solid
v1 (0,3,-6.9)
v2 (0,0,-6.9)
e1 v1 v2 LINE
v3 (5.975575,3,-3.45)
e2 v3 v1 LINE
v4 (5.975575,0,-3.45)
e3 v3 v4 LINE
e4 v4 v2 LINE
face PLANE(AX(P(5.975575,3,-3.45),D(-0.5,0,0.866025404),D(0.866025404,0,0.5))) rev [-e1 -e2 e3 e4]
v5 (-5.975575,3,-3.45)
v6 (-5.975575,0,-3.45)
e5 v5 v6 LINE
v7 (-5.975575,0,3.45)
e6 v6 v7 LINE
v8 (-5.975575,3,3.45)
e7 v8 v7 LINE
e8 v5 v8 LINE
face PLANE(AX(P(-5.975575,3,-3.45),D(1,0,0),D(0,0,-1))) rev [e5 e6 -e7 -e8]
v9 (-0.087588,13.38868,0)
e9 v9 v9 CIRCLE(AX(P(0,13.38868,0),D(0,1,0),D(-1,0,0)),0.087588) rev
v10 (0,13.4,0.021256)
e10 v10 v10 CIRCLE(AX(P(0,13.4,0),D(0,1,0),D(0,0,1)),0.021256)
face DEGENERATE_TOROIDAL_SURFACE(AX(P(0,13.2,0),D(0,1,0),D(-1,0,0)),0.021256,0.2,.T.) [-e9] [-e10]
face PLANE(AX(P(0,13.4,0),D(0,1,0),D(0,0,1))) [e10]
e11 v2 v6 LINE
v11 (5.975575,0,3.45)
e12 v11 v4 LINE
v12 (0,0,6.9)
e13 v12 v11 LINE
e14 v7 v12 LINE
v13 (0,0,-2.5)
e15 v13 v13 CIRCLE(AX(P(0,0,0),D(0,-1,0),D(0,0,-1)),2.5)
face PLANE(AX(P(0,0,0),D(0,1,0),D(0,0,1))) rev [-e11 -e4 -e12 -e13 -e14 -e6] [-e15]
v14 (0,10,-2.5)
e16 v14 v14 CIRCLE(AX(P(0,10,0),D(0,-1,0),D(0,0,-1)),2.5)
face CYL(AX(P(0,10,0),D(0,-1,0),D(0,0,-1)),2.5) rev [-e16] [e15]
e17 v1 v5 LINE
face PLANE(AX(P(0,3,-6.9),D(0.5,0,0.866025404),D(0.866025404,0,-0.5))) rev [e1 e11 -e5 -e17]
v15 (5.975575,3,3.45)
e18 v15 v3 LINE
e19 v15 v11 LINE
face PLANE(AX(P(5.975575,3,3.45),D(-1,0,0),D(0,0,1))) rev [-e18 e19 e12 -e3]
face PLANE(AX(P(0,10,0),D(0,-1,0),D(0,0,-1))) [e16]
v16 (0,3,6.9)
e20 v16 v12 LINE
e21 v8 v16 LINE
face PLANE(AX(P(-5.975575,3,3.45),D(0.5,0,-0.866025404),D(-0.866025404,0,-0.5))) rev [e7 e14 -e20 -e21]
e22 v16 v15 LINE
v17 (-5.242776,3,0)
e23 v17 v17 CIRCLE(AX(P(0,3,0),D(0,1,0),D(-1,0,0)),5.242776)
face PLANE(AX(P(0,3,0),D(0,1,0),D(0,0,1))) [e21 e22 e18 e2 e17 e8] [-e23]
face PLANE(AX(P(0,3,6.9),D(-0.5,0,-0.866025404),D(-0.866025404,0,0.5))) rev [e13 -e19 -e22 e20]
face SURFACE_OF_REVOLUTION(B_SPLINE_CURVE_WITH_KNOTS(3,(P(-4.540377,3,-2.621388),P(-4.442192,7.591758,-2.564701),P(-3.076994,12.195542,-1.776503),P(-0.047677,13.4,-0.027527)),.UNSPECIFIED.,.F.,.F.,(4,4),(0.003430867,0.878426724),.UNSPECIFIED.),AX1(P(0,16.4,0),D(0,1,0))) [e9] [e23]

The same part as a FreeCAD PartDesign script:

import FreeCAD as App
import Part
import Sketcher
Q = App.Units.Quantity


def edges_at(feature, points):
    """Names of the edges that pass closest to the given points."""
    edges = feature.Shape.Edges
    near = lambda p: min(range(len(edges)), key=lambda i: edges[i].distToShape(Part.Vertex(*p))[0])
    return sorted({f"Edge{near(p) + 1}" for p in points})

doc = App.newDocument("Part")
body = doc.addObject("PartDesign::Body", "Body")

# Sketch on XZ plane
sketch1 = body.newObject("Sketcher::SketchObject", "Sketch")
sketch1.AttachmentSupport = (doc.getObject("XZ_Plane"), [""])
sketch1.MapMode = "FlatFace"
sketch1.addGeometry(Part.LineSegment(App.Vector(0, 7, 0), App.Vector(6, 3, 0)), False)
sketch1.addGeometry(Part.LineSegment(App.Vector(6, 3, 0), App.Vector(6, -3, 0)), False)
sketch1.addGeometry(Part.LineSegment(App.Vector(6, -3, 0), App.Vector(0, -7, 0)), False)
sketch1.addGeometry(Part.LineSegment(App.Vector(0, -7, 0), App.Vector(-6, -3, 0)), False)
sketch1.addGeometry(Part.LineSegment(App.Vector(-6, -3, 0), App.Vector(-6, 3, 0)), False)
sketch1.addGeometry(Part.LineSegment(App.Vector(-6, 3, 0), App.Vector(0, 7, 0)), False)
sketch1.addConstraint(Sketcher.Constraint("Coincident", 0, 2, 1, 1))
sketch1.addConstraint(Sketcher.Constraint("Coincident", 1, 2, 2, 1))
sketch1.addConstraint(Sketcher.Constraint("Coincident", 2, 2, 3, 1))
sketch1.addConstraint(Sketcher.Constraint("Coincident", 3, 2, 4, 1))
sketch1.addConstraint(Sketcher.Constraint("Coincident", 4, 2, 5, 1))
sketch1.addConstraint(Sketcher.Constraint("Coincident", 5, 2, 0, 1))
sketch1.addConstraint(Sketcher.Constraint("Vertical", 1))
sketch1.addConstraint(Sketcher.Constraint("Vertical", 4))
sketch1.addConstraint(Sketcher.Constraint("Symmetric", 0, 2, 3, 2, -1, 1))
sketch1.addConstraint(Sketcher.Constraint("Symmetric", 2, 2, 5, 2, -1, 1))
sketch1.addConstraint(Sketcher.Constraint("PointOnObject", 2, 2, -2))
sketch1.addConstraint(Sketcher.Constraint("Parallel", 2, 5))
sketch1.addConstraint(Sketcher.Constraint("Horizontal", 1, 2, 3, 2))
sketch1.addConstraint(Sketcher.Constraint("Angle", 0, Q("-30 deg")))
sketch1.addConstraint(Sketcher.Constraint("DistanceY", 1, 2, 1, 1, 6.9))
sketch1.addConstraint(Sketcher.Constraint("Distance", 0, 6.9))
pad1 = body.newObject("PartDesign::Pad", "Pad")
pad1.Profile = sketch1
pad1.Length = 3
pad1.Reversed = True

# Sketch on XZ plane
sketch2 = body.newObject("Sketcher::SketchObject", "Sketch001")
sketch2.AttachmentSupport = (doc.getObject("XZ_Plane"), [""])
sketch2.MapMode = "FlatFace"
sketch2.AttachmentOffset = App.Placement(App.Vector(0, 0, -3), App.Rotation())
sketch2.addGeometry(Part.Circle(App.Vector(0, 0, 0), App.Vector(0, 0, 1), 6), False)
sketch2.addConstraint(Sketcher.Constraint("Coincident", 0, 3, -1, 1))
sketch2.addConstraint(Sketcher.Constraint("Diameter", 0, 11.0))
pad2 = body.newObject("PartDesign::Pad", "Pad001")
pad2.Profile = sketch2
pad2.Length = 10.4
pad2.Reversed = True

# Sketch on an angled plane
sketch3 = body.newObject("Sketcher::SketchObject", "Sketch002")
sketch3.Placement = App.Placement(App.Vector(0, 0, 0), App.Rotation(App.Vector(0.866025404, 0, 0.5), App.Vector(0, 1, 0), App.Vector(-0.5, 0, 0.866025404), "ZXY"))
sketch3.addGeometry(Part.LineSegment(App.Vector(-0.055053, 13.4, 0), App.Vector(-9.065706, 13.4, 0)), False)
sketch3.addGeometry(Part.LineSegment(App.Vector(-9.065706, 13.4, 0), App.Vector(-9.065706, 3, 0)), False)
sketch3.addGeometry(Part.LineSegment(App.Vector(-9.065706, 3, 0), App.Vector(-5.242776, 3, 0)), False)
sketch3.addGeometry(Part.BSplineCurve([App.Vector(-0.055053, 13.4, 0), App.Vector(-3.553006, 12.195542, 0), App.Vector(-5.129402, 7.591758, 0), App.Vector(-5.242776, 3, 0)], [4, 4], [0.003430867, 0.878426724], False, 3, [1, 1, 1, 1], False), False)
sketch3.addConstraint(Sketcher.Constraint("Block", 3))
sketch3.addConstraint(Sketcher.Constraint("Coincident", 0, 2, 1, 1))
sketch3.addConstraint(Sketcher.Constraint("Coincident", 1, 2, 2, 1))
sketch3.addConstraint(Sketcher.Constraint("Coincident", 2, 2, 3, 2))
sketch3.addConstraint(Sketcher.Constraint("Coincident", 3, 1, 0, 1))
sketch3.addConstraint(Sketcher.Constraint("Horizontal", 0))
sketch3.addConstraint(Sketcher.Constraint("Vertical", 1))
sketch3.addConstraint(Sketcher.Constraint("Horizontal", 2))
sketch3.addConstraint(Sketcher.Constraint("DistanceX", 2, 1, 2, 2, 3.82293))
groove = body.newObject("PartDesign::Groove", "Groove")
groove.Profile = sketch3
groove.ReferenceAxis = (sketch3, ["V_Axis"])
groove.Angle = 360
doc.recompute()

fillet = body.newObject("PartDesign::Fillet", "Fillet")
fillet.Base = (groove, edges_at(groove, [(0.048, 13.4, 0.028)]))
fillet.Radius = 0.2

# Sketch on XZ plane
sketch4 = body.newObject("Sketcher::SketchObject", "Sketch003")
sketch4.AttachmentSupport = (doc.getObject("XZ_Plane"), [""])
sketch4.MapMode = "FlatFace"
sketch4.addGeometry(Part.Circle(App.Vector(0, 0, 0), App.Vector(0, 0, 1), 2.5), False)
sketch4.addConstraint(Sketcher.Constraint("Coincident", 0, 3, -1, 1))
sketch4.addConstraint(Sketcher.Constraint("Diameter", 0, 5.0))
pocket1 = body.newObject("PartDesign::Pocket", "Pocket")
pocket1.Profile = sketch4
pocket1.Length = 10

doc.recompute()
